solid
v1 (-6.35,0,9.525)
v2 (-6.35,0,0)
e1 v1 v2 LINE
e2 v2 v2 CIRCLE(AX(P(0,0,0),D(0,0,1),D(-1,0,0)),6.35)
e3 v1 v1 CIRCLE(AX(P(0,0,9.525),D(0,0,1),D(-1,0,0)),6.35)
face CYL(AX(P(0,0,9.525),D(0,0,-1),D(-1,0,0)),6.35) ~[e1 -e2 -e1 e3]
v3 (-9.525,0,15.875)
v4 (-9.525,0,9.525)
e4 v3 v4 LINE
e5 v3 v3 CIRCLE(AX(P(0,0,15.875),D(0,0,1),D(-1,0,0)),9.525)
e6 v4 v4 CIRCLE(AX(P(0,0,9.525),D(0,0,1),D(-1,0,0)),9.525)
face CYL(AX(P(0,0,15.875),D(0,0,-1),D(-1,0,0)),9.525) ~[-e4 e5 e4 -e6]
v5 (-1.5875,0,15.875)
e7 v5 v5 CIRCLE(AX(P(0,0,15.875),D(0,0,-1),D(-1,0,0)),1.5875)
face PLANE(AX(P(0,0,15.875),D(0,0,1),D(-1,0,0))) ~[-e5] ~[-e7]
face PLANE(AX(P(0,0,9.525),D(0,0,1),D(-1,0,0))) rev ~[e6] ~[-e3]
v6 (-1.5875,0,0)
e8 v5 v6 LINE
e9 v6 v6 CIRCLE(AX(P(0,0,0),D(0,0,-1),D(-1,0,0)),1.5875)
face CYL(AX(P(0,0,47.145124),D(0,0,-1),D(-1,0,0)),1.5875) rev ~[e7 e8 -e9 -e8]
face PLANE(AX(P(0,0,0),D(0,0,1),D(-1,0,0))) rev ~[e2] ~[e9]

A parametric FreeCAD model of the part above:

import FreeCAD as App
import Part
import Sketcher

V = App.Vector
Q = App.Units.Quantity

doc = App.newDocument("Part")
body = doc.addObject("PartDesign::Body", "Body")

# Sketch on XZ plane
sketch1 = body.newObject("Sketcher::SketchObject", "Sketch")
sketch1.AttachmentSupport = (doc.getObject("XZ_Plane"), [""])
sketch1.MapMode = "FlatFace"
sketch1.addGeometry([
    Part.LineSegment(V(-6.3, 0, 0), V(0, 0, 0)),  # 0
    Part.LineSegment(V(0, 0, 0), V(0, 15.9, 0)),  # 1
    Part.LineSegment(V(0, 15.9, 0), V(-9.5, 15.9, 0)),  # 2
    Part.LineSegment(V(-9.5, 15.9, 0), V(-9.5, 9.5, 0)),  # 3
    Part.LineSegment(V(-9.5, 9.5, 0), V(-6.3, 9.5, 0)),  # 4
    Part.LineSegment(V(-6.3, 9.5, 0), V(-6.3, 0, 0)),  # 5
], False)
sketch1.addConstraint([
    Sketcher.Constraint("Coincident", 0, 2, 1, 1),
    Sketcher.Constraint("Coincident", 1, 2, 2, 1),
    Sketcher.Constraint("Coincident", 2, 2, 3, 1),
    Sketcher.Constraint("Coincident", 3, 2, 4, 1),
    Sketcher.Constraint("Coincident", 4, 2, 5, 1),
    Sketcher.Constraint("Coincident", 5, 2, 0, 1),
    Sketcher.Constraint("Horizontal", 0),
    Sketcher.Constraint("Vertical", 1),
    Sketcher.Constraint("Horizontal", 2),
    Sketcher.Constraint("Vertical", 3),
    Sketcher.Constraint("Horizontal", 4),
    Sketcher.Constraint("Vertical", 5),
    Sketcher.Constraint("Coincident", 0, 2, -1, 1),
    Sketcher.Constraint("Equal", 0, 3),
    Sketcher.Constraint("Equal", 2, 5),
    Sketcher.Constraint("DistanceX", 0, 1, 0, 2, Q("0.25 in")),
    Sketcher.Constraint("DistanceX", 2, 2, 2, 1, Q("0.375 in")),
])
revolution = body.newObject("PartDesign::Revolution", "Revolution")
revolution.Profile = sketch1
revolution.ReferenceAxis = (sketch1, ["V_Axis"])
revolution.Angle = 360

# Sketch on XY plane
sketch2 = body.newObject("Sketcher::SketchObject", "Sketch001")
sketch2.AttachmentSupport = (doc.getObject("XY_Plane"), [""])
sketch2.MapMode = "FlatFace"
sketch2.AttachmentOffset = App.Placement(V(0, 0, 0.625 * 25.4), App.Rotation())
sketch2.addGeometry(Part.Circle(V(0, 0, 0), V(0, 0, 1), 1.6), False)
sketch2.addConstraint([
    Sketcher.Constraint("Coincident", 0, 3, -1, 1),
    Sketcher.Constraint("Diameter", 0, Q("0.125 in")),
])
doc.recompute()
hole = body.newObject("PartDesign::Hole", "Hole")
hole.Profile = sketch2
hole.ThreadType = "None"
hole.Diameter = Q("0.125 in")
hole.DepthType = "ThroughAll"

doc.recompute()
